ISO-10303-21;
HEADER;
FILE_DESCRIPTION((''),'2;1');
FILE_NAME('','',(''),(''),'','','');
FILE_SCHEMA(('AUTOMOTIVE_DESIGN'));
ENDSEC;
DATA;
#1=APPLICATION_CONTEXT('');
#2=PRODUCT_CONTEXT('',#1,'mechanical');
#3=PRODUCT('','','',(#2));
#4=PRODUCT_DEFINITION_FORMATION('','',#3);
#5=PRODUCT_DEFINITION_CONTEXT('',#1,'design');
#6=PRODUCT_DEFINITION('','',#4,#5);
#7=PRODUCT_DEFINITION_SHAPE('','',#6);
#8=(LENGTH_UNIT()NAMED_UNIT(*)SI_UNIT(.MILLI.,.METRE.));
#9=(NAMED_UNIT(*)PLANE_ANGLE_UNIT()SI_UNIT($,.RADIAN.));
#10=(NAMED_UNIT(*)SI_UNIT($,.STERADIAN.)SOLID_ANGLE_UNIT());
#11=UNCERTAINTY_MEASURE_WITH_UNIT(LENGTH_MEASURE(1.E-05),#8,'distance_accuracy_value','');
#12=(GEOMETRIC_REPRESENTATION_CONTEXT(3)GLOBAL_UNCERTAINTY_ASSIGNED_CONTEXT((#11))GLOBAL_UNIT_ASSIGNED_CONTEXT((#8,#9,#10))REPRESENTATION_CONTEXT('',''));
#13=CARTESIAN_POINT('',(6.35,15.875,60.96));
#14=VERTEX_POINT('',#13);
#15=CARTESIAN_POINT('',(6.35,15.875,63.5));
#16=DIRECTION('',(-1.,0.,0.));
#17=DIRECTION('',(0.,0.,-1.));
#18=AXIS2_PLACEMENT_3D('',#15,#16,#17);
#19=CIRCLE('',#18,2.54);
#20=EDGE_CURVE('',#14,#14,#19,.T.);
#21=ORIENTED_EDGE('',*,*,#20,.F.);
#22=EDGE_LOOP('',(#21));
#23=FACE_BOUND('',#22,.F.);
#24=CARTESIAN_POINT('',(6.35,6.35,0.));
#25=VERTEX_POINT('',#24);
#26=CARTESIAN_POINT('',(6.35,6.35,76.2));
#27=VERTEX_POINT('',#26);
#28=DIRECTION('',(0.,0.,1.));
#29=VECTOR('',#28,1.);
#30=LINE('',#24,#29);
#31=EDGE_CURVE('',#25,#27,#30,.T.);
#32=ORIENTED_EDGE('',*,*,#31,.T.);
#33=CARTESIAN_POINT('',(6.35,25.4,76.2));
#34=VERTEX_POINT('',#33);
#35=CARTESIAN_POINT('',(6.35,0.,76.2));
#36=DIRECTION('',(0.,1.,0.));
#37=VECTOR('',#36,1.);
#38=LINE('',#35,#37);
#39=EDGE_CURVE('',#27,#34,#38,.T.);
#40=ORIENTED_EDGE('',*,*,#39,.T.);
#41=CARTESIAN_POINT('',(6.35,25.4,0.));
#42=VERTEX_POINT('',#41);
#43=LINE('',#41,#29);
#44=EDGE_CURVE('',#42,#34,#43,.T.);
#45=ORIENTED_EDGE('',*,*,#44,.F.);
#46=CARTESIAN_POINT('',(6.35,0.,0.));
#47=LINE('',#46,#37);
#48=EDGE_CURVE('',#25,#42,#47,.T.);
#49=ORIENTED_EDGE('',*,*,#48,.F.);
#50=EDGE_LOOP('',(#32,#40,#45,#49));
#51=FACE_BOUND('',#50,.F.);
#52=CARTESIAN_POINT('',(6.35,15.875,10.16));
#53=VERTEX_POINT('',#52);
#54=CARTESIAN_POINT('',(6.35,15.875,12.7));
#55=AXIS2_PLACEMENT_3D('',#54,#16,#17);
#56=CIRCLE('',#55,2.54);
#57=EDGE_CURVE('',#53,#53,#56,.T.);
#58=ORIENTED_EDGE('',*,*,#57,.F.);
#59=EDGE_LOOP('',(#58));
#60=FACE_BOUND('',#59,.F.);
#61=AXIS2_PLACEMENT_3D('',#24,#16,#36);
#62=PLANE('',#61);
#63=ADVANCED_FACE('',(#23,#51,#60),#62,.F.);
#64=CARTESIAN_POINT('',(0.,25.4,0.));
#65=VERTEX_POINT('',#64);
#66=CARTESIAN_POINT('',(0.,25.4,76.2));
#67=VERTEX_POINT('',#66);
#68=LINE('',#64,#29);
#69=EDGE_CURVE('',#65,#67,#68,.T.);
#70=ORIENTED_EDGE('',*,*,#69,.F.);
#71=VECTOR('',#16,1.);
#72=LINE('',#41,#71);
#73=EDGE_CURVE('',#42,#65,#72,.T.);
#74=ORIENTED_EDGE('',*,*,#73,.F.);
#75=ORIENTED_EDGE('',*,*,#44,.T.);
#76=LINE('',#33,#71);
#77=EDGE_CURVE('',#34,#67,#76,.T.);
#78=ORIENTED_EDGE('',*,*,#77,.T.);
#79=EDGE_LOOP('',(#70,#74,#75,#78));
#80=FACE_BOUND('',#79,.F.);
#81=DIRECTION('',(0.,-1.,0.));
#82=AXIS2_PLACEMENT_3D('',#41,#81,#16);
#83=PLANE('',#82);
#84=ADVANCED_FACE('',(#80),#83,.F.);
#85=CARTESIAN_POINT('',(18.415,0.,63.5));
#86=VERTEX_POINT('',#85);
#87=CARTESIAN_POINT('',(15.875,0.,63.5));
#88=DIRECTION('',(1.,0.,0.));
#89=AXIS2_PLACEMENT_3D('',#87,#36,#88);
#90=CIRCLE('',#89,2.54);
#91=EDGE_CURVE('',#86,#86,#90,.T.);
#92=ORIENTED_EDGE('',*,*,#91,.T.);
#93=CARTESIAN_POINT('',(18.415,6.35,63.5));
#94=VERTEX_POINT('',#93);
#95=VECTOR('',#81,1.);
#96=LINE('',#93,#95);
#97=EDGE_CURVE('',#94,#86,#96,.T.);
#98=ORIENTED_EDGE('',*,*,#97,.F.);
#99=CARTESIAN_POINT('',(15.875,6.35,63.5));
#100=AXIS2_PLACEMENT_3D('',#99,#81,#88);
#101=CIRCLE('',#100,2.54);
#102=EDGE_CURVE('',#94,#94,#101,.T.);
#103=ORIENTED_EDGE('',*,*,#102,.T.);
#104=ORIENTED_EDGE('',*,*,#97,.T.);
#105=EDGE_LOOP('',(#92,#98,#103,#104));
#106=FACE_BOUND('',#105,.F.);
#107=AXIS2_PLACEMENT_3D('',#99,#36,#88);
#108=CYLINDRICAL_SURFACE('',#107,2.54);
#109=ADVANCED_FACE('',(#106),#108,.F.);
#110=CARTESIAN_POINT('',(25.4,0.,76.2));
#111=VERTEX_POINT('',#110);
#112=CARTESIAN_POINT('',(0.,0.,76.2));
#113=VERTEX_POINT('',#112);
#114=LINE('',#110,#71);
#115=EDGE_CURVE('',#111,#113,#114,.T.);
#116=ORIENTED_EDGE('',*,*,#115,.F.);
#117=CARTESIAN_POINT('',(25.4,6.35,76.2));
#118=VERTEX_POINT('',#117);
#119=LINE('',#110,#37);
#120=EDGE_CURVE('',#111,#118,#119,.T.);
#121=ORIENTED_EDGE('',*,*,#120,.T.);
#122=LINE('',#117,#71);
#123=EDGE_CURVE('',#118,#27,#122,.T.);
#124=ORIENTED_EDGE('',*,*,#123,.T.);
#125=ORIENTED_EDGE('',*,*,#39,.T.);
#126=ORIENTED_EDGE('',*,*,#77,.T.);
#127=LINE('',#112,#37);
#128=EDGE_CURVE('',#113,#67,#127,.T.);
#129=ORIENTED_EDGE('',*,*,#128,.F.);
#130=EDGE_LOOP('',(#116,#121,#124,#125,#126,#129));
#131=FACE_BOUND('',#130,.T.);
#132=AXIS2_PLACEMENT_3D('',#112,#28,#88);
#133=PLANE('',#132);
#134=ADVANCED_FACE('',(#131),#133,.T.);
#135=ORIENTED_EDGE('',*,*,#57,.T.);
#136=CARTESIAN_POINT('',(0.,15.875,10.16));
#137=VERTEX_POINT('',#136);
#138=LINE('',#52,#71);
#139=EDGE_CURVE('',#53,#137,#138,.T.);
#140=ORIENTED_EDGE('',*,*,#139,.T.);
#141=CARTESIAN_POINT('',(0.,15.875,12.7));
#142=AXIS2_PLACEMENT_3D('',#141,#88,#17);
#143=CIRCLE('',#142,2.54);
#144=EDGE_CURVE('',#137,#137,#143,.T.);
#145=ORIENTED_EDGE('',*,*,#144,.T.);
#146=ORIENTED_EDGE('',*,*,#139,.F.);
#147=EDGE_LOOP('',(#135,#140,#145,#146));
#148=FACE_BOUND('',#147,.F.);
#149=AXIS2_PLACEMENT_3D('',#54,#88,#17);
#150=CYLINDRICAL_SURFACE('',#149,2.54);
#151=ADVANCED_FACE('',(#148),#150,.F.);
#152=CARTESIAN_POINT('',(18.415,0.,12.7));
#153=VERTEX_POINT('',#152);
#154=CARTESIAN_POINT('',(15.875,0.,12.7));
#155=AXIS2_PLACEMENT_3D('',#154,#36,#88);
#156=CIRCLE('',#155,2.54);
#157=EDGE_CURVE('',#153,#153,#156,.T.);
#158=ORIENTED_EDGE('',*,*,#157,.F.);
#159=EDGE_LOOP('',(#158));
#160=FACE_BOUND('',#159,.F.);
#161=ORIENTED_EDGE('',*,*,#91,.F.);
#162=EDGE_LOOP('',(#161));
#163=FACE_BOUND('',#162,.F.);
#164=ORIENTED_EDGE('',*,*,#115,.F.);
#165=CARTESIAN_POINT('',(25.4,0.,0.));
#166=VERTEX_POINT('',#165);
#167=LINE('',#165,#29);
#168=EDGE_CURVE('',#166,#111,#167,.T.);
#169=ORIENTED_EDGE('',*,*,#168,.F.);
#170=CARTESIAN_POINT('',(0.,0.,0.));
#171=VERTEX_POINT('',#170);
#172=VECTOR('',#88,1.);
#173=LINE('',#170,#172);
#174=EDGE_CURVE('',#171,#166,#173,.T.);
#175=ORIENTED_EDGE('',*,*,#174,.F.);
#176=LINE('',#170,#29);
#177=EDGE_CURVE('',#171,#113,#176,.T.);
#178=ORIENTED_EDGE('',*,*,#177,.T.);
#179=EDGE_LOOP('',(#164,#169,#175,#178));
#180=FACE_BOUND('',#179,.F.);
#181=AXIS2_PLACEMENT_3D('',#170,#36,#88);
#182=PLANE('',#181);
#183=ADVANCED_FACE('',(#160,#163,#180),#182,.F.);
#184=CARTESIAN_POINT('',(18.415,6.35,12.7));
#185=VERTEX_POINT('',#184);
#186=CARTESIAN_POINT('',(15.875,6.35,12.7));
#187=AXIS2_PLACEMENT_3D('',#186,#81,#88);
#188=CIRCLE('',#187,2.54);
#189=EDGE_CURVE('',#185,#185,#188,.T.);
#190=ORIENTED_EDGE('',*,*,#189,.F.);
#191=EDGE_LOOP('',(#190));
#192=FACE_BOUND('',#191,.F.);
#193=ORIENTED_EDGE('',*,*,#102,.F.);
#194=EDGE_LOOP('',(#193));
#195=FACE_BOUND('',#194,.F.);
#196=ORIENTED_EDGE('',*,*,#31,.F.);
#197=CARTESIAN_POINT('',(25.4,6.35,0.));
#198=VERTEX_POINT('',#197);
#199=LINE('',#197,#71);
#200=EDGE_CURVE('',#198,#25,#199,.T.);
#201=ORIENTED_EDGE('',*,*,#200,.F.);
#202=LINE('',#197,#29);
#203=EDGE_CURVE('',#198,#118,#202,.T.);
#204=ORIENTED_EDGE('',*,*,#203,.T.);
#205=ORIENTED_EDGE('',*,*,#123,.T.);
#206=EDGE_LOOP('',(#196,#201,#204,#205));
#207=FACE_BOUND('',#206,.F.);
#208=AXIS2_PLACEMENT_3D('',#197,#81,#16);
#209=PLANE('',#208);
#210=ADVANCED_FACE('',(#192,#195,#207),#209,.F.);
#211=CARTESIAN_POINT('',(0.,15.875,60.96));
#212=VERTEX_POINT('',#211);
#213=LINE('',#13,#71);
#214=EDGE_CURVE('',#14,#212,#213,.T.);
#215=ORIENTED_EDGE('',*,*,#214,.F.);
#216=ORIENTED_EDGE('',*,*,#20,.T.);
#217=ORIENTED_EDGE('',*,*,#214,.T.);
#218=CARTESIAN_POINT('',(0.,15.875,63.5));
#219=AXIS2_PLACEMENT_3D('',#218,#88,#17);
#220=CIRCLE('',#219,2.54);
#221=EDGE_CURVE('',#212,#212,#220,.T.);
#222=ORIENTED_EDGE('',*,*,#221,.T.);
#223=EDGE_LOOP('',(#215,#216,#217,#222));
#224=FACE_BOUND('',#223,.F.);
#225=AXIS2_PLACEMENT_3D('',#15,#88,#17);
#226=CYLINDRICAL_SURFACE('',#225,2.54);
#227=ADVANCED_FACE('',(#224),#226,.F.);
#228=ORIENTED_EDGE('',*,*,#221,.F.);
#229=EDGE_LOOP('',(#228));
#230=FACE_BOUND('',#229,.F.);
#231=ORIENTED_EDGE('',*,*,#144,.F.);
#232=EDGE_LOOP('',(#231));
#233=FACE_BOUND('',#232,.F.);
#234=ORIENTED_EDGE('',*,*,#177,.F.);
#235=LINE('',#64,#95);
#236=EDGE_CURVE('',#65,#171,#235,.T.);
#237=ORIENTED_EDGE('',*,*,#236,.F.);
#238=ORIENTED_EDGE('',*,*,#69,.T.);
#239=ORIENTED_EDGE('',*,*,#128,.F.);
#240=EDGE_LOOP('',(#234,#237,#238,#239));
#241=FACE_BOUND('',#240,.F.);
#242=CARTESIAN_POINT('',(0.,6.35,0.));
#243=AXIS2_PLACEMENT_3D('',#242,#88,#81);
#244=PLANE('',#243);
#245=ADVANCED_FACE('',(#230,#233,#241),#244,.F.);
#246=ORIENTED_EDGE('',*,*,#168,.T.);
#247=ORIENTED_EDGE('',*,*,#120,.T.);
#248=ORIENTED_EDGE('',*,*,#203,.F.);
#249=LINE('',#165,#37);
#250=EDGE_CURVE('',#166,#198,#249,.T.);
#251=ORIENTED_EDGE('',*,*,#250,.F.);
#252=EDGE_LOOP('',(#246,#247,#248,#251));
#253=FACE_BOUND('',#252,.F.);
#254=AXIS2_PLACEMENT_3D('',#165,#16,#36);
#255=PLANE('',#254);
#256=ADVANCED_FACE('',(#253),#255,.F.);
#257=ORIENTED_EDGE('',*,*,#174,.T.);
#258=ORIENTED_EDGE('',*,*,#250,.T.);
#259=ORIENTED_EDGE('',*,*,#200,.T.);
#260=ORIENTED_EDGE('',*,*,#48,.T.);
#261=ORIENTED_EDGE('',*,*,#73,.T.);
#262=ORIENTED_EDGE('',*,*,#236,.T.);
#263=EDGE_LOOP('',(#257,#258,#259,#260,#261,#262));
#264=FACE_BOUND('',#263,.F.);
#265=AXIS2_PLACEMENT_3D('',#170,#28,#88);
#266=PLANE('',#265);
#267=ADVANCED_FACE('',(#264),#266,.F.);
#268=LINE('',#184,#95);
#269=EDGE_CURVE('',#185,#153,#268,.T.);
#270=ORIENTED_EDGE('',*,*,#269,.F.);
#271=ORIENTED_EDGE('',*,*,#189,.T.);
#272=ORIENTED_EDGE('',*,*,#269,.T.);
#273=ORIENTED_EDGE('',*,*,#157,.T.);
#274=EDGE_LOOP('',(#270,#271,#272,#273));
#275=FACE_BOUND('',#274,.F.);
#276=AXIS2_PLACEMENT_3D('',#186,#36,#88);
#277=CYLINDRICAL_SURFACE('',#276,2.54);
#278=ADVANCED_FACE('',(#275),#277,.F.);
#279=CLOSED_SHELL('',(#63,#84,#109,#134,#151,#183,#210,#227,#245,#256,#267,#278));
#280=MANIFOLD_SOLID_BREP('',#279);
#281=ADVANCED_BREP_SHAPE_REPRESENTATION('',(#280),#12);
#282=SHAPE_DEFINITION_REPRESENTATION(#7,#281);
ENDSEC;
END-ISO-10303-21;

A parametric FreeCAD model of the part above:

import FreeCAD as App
import Part
import Sketcher
from FreeCAD import Vector
Q = App.Units.Quantity


def add_polygon(sketch, points):
    """Adds a closed chain of lines whose ends are joined by coincident constraints."""
    first, n = sketch.GeometryCount, len(points)
    for a, b in zip(points, points[1:] + points[:1]):
        sketch.addGeometry(Part.LineSegment(App.Vector(*a, 0), App.Vector(*b, 0)), False)
    for i in range(n):
        sketch.addConstraint(Sketcher.Constraint("Coincident", first + i, 2, first + (i + 1) % n, 1))

doc = App.newDocument("Part")
body = doc.addObject("PartDesign::Body", "Body")

# Sketch on XY plane
sketch1 = body.newObject("Sketcher::SketchObject", "Sketch")
sketch1.AttachmentSupport = (doc.getObject("XY_Plane"), [""])
sketch1.MapMode = "FlatFace"
add_polygon(sketch1, [(0, 0), (25.4, 0), (25.4, 6.35), (6.35, 6.35), (6.35, 25.4), (0, 25.4)])  # lines 0-5
sketch1.addConstraint([
    Sketcher.Constraint("Horizontal", 0),
    Sketcher.Constraint("Vertical", 1),
    Sketcher.Constraint("Horizontal", 2),
    Sketcher.Constraint("Vertical", 3),
    Sketcher.Constraint("Horizontal", 4),
    Sketcher.Constraint("Vertical", 5),
    Sketcher.Constraint("Coincident", 5, 2, -1, 1),
    Sketcher.Constraint("Equal", 4, 1),
    Sketcher.Constraint("Equal", 2, 3),
    Sketcher.Constraint("DistanceX", 0, 1, 0, 2, Q("1 in")),
    Sketcher.Constraint("DistanceX", 4, 2, 4, 1, Q("0.25 in")),
])
pad1 = body.newObject("PartDesign::Pad", "Pad")
pad1.Profile = sketch1
pad1.Length = Q("3 in")

# Sketch on XZ plane
sketch2 = body.newObject("Sketcher::SketchObject", "Sketch001")
sketch2.AttachmentSupport = (doc.getObject("XZ_Plane"), [""])
sketch2.MapMode = "FlatFace"
sketch2.AttachmentOffset = App.Placement(Vector(0, 0, -0.25 * 25.4), App.Rotation())
sketch2.addGeometry([
    Part.Circle(Vector(15.875, 12.7, 0), Vector(0, 0, 1), 2.54),
    Part.Circle(Vector(15.875, 63.5, 0), Vector(0, 0, 1), 2.54),
], False)
sketch2.addConstraint([
    Sketcher.Constraint("Equal", 0, 1),
    Sketcher.Constraint("Vertical", 0, 3, 1, 3),
    Sketcher.Constraint("Diameter", 0, Q("0.2 in")),
    Sketcher.Constraint("DistanceY", -1, 1, 0, 3, Q("0.5 in")),
    Sketcher.Constraint("DistanceY", 0, 3, 1, 3, Q("2 in")),
    Sketcher.Constraint("DistanceX", -1, 1, 0, 3, Q("0.625 in")),
])
pocket1 = body.newObject("PartDesign::Pocket", "Pocket")
pocket1.Profile = sketch2
pocket1.Length = Q("1 in")
pocket1.Reversed = True

# Sketch on YZ plane
sketch3 = body.newObject("Sketcher::SketchObject", "Sketch002")
sketch3.AttachmentSupport = (doc.getObject("YZ_Plane"), [""])
sketch3.MapMode = "FlatFace"
sketch3.AttachmentOffset = App.Placement(Vector(0, 0, 0.25 * 25.4), App.Rotation())
sketch3.addGeometry([
    Part.Circle(Vector(15.875, 12.7, 0), Vector(0, 0, 1), 2.54),
    Part.Circle(Vector(15.875, 63.5, 0), Vector(0, 0, 1), 2.54),
], False)
sketch3.addConstraint([
    Sketcher.Constraint("Equal", 0, 1),
    Sketcher.Constraint("Vertical", 0, 3, 1, 3),
    Sketcher.Constraint("Diameter", 0, Q("0.2 in")),
    Sketcher.Constraint("DistanceY", -1, 1, 0, 3, Q("0.5 in")),
    Sketcher.Constraint("DistanceY", 0, 3, 1, 3, Q("2 in")),
    Sketcher.Constraint("DistanceX", -1, 1, 0, 3, Q("0.625 in")),
])
pocket2 = body.newObject("PartDesign::Pocket", "Pocket001")
pocket2.Profile = sketch3
pocket2.Length = Q("1 in")

doc.recompute()
